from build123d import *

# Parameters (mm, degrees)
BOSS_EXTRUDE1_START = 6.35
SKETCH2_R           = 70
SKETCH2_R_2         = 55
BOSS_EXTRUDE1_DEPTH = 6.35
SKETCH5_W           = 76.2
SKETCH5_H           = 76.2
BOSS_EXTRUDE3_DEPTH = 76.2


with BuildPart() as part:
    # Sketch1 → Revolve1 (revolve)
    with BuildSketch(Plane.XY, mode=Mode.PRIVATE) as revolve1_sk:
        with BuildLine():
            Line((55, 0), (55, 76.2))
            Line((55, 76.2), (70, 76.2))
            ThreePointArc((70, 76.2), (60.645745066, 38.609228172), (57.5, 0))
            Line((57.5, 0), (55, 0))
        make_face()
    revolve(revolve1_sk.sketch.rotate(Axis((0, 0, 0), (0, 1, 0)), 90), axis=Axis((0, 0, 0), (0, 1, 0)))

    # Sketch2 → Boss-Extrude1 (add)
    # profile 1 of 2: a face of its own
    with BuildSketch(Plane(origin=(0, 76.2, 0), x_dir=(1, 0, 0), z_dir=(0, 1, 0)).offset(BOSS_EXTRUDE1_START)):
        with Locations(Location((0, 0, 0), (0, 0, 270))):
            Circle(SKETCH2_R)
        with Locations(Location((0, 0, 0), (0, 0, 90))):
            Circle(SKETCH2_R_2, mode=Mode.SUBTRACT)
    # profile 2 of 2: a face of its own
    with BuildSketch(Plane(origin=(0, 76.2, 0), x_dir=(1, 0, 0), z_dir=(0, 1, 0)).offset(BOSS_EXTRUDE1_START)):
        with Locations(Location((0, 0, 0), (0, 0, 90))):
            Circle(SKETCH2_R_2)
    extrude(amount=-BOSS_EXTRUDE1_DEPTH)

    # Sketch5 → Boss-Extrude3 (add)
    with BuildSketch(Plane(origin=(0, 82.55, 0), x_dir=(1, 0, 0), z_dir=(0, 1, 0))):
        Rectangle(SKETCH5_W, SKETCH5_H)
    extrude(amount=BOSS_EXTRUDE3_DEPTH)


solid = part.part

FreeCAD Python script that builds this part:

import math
import FreeCAD as App
import Part
import Sketcher
from FreeCAD import Vector

doc = App.newDocument("Part")
body = doc.addObject("PartDesign::Body", "Body")

# Sketch on XY plane
sketch1 = body.newObject("Sketcher::SketchObject", "Sketch")
sketch1.AttachmentSupport = (doc.getObject("XY_Plane"), [""])
sketch1.MapMode = "FlatFace"
sketch1.addGeometry([
    Part.LineSegment(Vector(55, 76.2, 0), Vector(55, 0, 0)),
    Part.LineSegment(Vector(55, 0, 0), Vector(57.5, 0, 0)),
    Part.ArcOfCircle(Part.Circle(Vector(296.0076, 0, 0), Vector(0, 0, 1), 238.5076), math.radians(161.368116), math.radians(180)),
    Part.LineSegment(Vector(70, 76.2, 0), Vector(55, 76.2, 0)),
], False)
sketch1.addConstraint([
    Sketcher.Constraint("Coincident", 0, 2, 1, 1),
    Sketcher.Constraint("Coincident", 1, 2, 2, 2),
    Sketcher.Constraint("Coincident", 2, 1, 3, 1),
    Sketcher.Constraint("Coincident", 3, 2, 0, 1),
    Sketcher.Constraint("Vertical", 0),
    Sketcher.Constraint("Horizontal", 1),
    Sketcher.Constraint("Horizontal", 3),
    Sketcher.Constraint("PointOnObject", 2, 3, -1),
    Sketcher.Constraint("PointOnObject", 0, 2, -1),
    Sketcher.Constraint("DistanceX", 3, 2, 3, 1, 15.0),
    Sketcher.Constraint("DistanceX", 1, 1, 1, 2, 2.5),
    Sketcher.Constraint("DistanceY", 0, 2, 0, 1, 76.2),
    Sketcher.Constraint("DistanceX", -1, 1, 0, 2, 55.0),
])
revolution = body.newObject("PartDesign::Revolution", "Revolution")
revolution.Profile = sketch1
revolution.ReferenceAxis = (sketch1, ["V_Axis"])
revolution.Angle = 360

# Sketch on XZ plane
sketch2 = body.newObject("Sketcher::SketchObject", "Sketch001")
sketch2.AttachmentSupport = (doc.getObject("XZ_Plane"), [""])
sketch2.MapMode = "FlatFace"
sketch2.AttachmentOffset = App.Placement(Vector(0, 0, -82.55), App.Rotation())
sketch2.addGeometry(Part.Circle(Vector(0, 0, 0), Vector(0, 0, 1), 70), False)
sketch2.addConstraint([
    Sketcher.Constraint("Coincident", 0, 3, -1, 1),
    Sketcher.Constraint("Diameter", 0, 140.0),
])
pad1 = body.newObject("PartDesign::Pad", "Pad")
pad1.Profile = sketch2
pad1.Length = 6.35

# Sketch on XZ plane
sketch3 = body.newObject("Sketcher::SketchObject", "Sketch002")
sketch3.AttachmentSupport = (doc.getObject("XZ_Plane"), [""])
sketch3.MapMode = "FlatFace"
sketch3.AttachmentOffset = App.Placement(Vector(0, 0, -82.55), App.Rotation())
sketch3.addGeometry([
    Part.LineSegment(Vector(-38.1, -38.1, 0), Vector(-38.1, 38.1, 0)),
    Part.LineSegment(Vector(-38.1, 38.1, 0), Vector(38.1, 38.1, 0)),
    Part.LineSegment(Vector(38.1, 38.1, 0), Vector(38.1, -38.1, 0)),
    Part.LineSegment(Vector(38.1, -38.1, 0), Vector(-38.1, -38.1, 0)),
], False)
sketch3.addConstraint([
    Sketcher.Constraint("Coincident", 0, 2, 1, 1),
    Sketcher.Constraint("Coincident", 1, 2, 2, 1),
    Sketcher.Constraint("Coincident", 2, 2, 3, 1),
    Sketcher.Constraint("Coincident", 3, 2, 0, 1),
    Sketcher.Constraint("Vertical", 0),
    Sketcher.Constraint("Horizontal", 1),
    Sketcher.Constraint("Vertical", 2),
    Sketcher.Constraint("Horizontal", 3),
    Sketcher.Constraint("Symmetric", 0, 2, 2, 2, -1, 1),
    Sketcher.Constraint("Equal", 3, 0),
    Sketcher.Constraint("DistanceX", 1, 1, 1, 2, 76.2),
])
pad2 = body.newObject("PartDesign::Pad", "Pad001")
pad2.Profile = sketch3
pad2.Length = 76.2
pad2.Reversed = True

doc.recompute()
